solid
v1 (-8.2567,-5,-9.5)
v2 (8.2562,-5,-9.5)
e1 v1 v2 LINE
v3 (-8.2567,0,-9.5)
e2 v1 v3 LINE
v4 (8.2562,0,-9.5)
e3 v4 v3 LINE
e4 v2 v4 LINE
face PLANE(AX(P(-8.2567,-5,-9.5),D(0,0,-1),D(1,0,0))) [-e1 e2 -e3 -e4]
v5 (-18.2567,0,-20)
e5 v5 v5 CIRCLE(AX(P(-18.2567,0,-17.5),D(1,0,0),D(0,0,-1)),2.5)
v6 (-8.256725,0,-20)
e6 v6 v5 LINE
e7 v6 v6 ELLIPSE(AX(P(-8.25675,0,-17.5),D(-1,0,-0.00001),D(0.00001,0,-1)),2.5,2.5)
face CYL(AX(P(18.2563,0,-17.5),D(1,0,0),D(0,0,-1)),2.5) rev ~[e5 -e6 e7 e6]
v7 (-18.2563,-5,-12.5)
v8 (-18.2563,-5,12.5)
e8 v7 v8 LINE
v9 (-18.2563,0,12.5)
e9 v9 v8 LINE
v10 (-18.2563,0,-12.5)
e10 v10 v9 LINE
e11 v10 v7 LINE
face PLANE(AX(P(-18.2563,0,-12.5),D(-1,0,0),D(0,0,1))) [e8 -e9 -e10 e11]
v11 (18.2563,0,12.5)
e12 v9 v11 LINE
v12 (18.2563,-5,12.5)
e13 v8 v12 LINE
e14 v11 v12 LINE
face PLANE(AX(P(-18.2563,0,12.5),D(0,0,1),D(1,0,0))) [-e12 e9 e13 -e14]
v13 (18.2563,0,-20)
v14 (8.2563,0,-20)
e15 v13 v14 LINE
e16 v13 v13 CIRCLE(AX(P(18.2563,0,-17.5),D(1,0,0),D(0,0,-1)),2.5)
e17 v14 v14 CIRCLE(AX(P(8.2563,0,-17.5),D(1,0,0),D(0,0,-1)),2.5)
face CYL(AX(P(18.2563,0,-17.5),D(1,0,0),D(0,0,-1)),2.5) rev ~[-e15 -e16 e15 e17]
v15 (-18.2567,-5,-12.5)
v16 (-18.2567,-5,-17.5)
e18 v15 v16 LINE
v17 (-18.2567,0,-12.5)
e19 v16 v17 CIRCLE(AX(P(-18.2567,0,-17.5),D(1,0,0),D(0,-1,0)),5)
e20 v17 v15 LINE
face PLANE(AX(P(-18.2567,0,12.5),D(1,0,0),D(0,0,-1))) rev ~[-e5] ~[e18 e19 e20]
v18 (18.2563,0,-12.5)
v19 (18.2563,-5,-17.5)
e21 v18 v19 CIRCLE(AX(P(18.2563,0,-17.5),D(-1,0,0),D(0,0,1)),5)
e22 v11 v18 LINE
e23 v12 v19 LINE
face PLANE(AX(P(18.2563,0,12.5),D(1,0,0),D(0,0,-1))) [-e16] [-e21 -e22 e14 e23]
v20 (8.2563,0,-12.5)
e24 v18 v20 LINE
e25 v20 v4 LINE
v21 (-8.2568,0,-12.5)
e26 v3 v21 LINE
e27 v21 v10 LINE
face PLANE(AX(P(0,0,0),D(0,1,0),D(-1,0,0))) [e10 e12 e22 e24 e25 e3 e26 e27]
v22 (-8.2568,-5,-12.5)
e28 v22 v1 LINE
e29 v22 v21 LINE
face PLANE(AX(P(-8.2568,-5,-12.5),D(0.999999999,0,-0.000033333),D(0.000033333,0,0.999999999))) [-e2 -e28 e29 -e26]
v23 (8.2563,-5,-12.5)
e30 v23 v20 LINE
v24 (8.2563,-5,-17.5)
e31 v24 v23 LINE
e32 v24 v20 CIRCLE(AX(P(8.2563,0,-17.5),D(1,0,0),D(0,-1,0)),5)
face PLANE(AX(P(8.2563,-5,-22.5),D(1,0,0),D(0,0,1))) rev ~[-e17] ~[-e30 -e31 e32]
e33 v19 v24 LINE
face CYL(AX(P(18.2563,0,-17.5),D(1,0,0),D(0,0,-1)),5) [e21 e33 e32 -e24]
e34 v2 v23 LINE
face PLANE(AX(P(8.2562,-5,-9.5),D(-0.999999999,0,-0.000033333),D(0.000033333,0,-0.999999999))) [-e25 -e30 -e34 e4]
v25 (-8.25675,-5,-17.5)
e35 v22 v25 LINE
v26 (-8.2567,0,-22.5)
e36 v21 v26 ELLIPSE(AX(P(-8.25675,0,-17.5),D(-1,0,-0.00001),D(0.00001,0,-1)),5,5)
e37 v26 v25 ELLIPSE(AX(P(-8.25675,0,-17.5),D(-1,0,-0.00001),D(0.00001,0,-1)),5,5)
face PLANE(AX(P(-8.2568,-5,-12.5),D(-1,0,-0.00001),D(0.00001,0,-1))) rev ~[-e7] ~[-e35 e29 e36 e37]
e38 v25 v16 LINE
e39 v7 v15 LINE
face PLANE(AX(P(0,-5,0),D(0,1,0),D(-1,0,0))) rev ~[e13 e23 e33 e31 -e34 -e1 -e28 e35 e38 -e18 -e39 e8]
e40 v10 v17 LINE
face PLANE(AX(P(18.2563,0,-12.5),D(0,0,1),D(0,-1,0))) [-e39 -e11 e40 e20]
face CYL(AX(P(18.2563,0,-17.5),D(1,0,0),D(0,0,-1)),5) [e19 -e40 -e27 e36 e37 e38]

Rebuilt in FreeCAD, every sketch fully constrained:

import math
import FreeCAD as App
import Part
import Sketcher

V = App.Vector
Q = App.Units.Quantity

doc = App.newDocument("Part")
params = doc.addObject("Spreadsheet::Sheet", "Params")
for row, (alias, value) in enumerate([
    ("sketch1_height", "25 mm"),
    ("pad1_length", "5 mm"),
    ("sketch2_radius", "5 mm"),
    ("pad2_length", "36.513 mm"),
    ("sketch3_diameter", "5 mm"),
    ("pocket1_length", "36.513 mm"),
    ("sketch4_height", "10 mm"),
    ("sketch4_height2", "3 mm"),
    ("pocket2_length", "36.513 mm"),
], start=1):
    params.set(f"A{row}", alias)
    params.set(f"B{row}", "=" + value)
    params.setAlias(f"B{row}", alias)

body = doc.addObject("PartDesign::Body", "Body")

# Sketch on XZ plane
sketch1 = doc.addObject("Sketcher::SketchObject", "Sketch")
body.addObject(sketch1)
sketch1.AttachmentSupport = (doc.XZ_Plane, [""])
sketch1.MapMode = "FlatFace"
sketch1.addGeometry([
    Part.LineSegment(V(18, 12, 0), V(18, -12, 0)),
    Part.LineSegment(V(18, -12, 0), V(-18, -12, 0)),
    Part.LineSegment(V(-18, -12, 0), V(-18, 12, 0)),
    Part.LineSegment(V(-18, 12, 0), V(18, 12, 0)),
], False)
sketch1.addConstraint([
    Sketcher.Constraint("Coincident", 0, 2, 1, 1),
    Sketcher.Constraint("Coincident", 1, 2, 2, 1),
    Sketcher.Constraint("Coincident", 2, 2, 3, 1),
    Sketcher.Constraint("Coincident", 3, 2, 0, 1),
    Sketcher.Constraint("Vertical", 0),
    Sketcher.Constraint("Horizontal", 1),
    Sketcher.Constraint("Vertical", 2),
    Sketcher.Constraint("Horizontal", 3),
    Sketcher.Constraint("Symmetric", 0, 2, 2, 2, -1, 1),
    Sketcher.Constraint("DistanceY", 0, 2, 0, 1, Q("25 mm")),
    Sketcher.Constraint("DistanceX", 1, 2, 1, 1, Q("36.5126 mm")),
])
sketch1.setExpression("Constraints[9]", "Params.sketch1_height")
pad1 = doc.addObject("PartDesign::Pad", "Pad")
body.addObject(pad1)
pad1.Profile = sketch1
pad1.setExpression("Length", "Params.pad1_length")

# Sketch on YZ plane
sketch2 = doc.addObject("Sketcher::SketchObject", "Sketch001")
body.addObject(sketch2)
sketch2.AttachmentSupport = (doc.YZ_Plane, [""])
sketch2.MapMode = "FlatFace"
sketch2.AttachmentOffset = App.Placement(V(0, 0, 18.2563), App.Rotation())
sketch2.addGeometry([
    Part.LineSegment(V(-5, -12, 0), V(-5, -18, 0)),
    Part.ArcOfCircle(Part.Circle(V(0, -18, 0), V(0, 0, 1), 5), math.radians(180), math.radians(450)),
    Part.LineSegment(V(0, -12, 0), V(-5, -12, 0)),
], False)
sketch2.addConstraint([
    Sketcher.Constraint("Tangent", 0, 2, 1, 1),
    Sketcher.Constraint("Tangent", 1, 2, 2, 1),
    Sketcher.Constraint("Coincident", 2, 2, 0, 1),
    Sketcher.Constraint("Vertical", 0),
    Sketcher.Constraint("Horizontal", 2),
    Sketcher.Constraint("PointOnObject", 1, 3, -2),
    Sketcher.Constraint("Radius", 1, Q("5 mm")),
    Sketcher.Constraint("DistanceY", 1, 3, -1, 1, Q("17.5 mm")),
])
sketch2.setExpression("Constraints[6]", "Params.sketch2_radius")
pad2 = doc.addObject("PartDesign::Pad", "Pad001")
body.addObject(pad2)
pad2.Profile = sketch2
pad2.setExpression("Length", "Params.pad2_length")
pad2.Reversed = True

# Sketch on YZ plane
sketch3 = doc.addObject("Sketcher::SketchObject", "Sketch002")
body.addObject(sketch3)
sketch3.AttachmentSupport = (doc.YZ_Plane, [""])
sketch3.MapMode = "FlatFace"
sketch3.AttachmentOffset = App.Placement(V(0, 0, 18.2563), App.Rotation())
sketch3.addGeometry(Part.Circle(V(0, -17.5, 0), V(0, 0, 1), 2.5), False)
sketch3.addConstraint([
    Sketcher.Constraint("PointOnObject", 0, 3, -2),
    Sketcher.Constraint("Diameter", 0, Q("5 mm")),
    Sketcher.Constraint("DistanceY", 0, 3, -1, 1, Q("17.5 mm")),
])
sketch3.setExpression("Constraints[1]", "Params.sketch3_diameter")
pocket1 = doc.addObject("PartDesign::Pocket", "Pocket")
body.addObject(pocket1)
pocket1.Profile = sketch3
pocket1.setExpression("Length", "Params.pocket1_length")

# Sketch on XZ plane
sketch4 = doc.addObject("Sketcher::SketchObject", "Sketch003")
body.addObject(sketch4)
sketch4.AttachmentSupport = (doc.XZ_Plane, [""])
sketch4.MapMode = "FlatFace"
sketch4.AttachmentOffset = App.Placement(V(0, 0, 5), App.Rotation())
sketch4.addGeometry([
    Part.LineSegment(V(8.3, -22.5, 0), V(8.3, -12.5, 0)),  # 0
    Part.LineSegment(V(8.3, -12.5, 0), V(8.3, -9.5, 0)),  # 1
    Part.LineSegment(V(8.3, -9.5, 0), V(-8.3, -9.5, 0)),  # 2
    Part.LineSegment(V(-8.3, -9.5, 0), V(-8.3, -12.5, 0)),  # 3
    Part.LineSegment(V(-8.3, -12.5, 0), V(-8.3, -22.5, 0)),  # 4
    Part.LineSegment(V(-8.3, -22.5, 0), V(8.3, -22.5, 0)),  # 5
], False)
sketch4.addConstraint([
    Sketcher.Constraint("Coincident", 0, 2, 1, 1),
    Sketcher.Constraint("Coincident", 1, 2, 2, 1),
    Sketcher.Constraint("Coincident", 2, 2, 3, 1),
    Sketcher.Constraint("Coincident", 3, 2, 4, 1),
    Sketcher.Constraint("Coincident", 4, 2, 5, 1),
    Sketcher.Constraint("Coincident", 5, 2, 0, 1),
    Sketcher.Constraint("Vertical", 0),
    Sketcher.Constraint("Vertical", 1),
    Sketcher.Constraint("Horizontal", 2),
    Sketcher.Constraint("Vertical", 3),
    Sketcher.Constraint("Vertical", 4),
    Sketcher.Constraint("Horizontal", 5),
    Sketcher.Constraint("Horizontal", 0, 2, 3, 2),
    Sketcher.Constraint("DistanceY", 0, 1, 0, 2, Q("10 mm")),
    Sketcher.Constraint("DistanceY", 1, 1, 1, 2, Q("3 mm")),
    Sketcher.Constraint("DistanceX", 2, 2, 2, 1, Q("16.513 mm")),
    Sketcher.Constraint("DistanceY", 0, 2, -1, 1, Q("12.5 mm")),
    Sketcher.Constraint("DistanceX", -1, 1, 0, 2, Q("8.2563 mm")),
])
sketch4.setExpression("Constraints[13]", "Params.sketch4_height")
sketch4.setExpression("Constraints[14]", "Params.sketch4_height2")
pocket2 = doc.addObject("PartDesign::Pocket", "Pocket001")
body.addObject(pocket2)
pocket2.Profile = sketch4
pocket2.setExpression("Length", "Params.pocket2_length")

doc.recompute()
